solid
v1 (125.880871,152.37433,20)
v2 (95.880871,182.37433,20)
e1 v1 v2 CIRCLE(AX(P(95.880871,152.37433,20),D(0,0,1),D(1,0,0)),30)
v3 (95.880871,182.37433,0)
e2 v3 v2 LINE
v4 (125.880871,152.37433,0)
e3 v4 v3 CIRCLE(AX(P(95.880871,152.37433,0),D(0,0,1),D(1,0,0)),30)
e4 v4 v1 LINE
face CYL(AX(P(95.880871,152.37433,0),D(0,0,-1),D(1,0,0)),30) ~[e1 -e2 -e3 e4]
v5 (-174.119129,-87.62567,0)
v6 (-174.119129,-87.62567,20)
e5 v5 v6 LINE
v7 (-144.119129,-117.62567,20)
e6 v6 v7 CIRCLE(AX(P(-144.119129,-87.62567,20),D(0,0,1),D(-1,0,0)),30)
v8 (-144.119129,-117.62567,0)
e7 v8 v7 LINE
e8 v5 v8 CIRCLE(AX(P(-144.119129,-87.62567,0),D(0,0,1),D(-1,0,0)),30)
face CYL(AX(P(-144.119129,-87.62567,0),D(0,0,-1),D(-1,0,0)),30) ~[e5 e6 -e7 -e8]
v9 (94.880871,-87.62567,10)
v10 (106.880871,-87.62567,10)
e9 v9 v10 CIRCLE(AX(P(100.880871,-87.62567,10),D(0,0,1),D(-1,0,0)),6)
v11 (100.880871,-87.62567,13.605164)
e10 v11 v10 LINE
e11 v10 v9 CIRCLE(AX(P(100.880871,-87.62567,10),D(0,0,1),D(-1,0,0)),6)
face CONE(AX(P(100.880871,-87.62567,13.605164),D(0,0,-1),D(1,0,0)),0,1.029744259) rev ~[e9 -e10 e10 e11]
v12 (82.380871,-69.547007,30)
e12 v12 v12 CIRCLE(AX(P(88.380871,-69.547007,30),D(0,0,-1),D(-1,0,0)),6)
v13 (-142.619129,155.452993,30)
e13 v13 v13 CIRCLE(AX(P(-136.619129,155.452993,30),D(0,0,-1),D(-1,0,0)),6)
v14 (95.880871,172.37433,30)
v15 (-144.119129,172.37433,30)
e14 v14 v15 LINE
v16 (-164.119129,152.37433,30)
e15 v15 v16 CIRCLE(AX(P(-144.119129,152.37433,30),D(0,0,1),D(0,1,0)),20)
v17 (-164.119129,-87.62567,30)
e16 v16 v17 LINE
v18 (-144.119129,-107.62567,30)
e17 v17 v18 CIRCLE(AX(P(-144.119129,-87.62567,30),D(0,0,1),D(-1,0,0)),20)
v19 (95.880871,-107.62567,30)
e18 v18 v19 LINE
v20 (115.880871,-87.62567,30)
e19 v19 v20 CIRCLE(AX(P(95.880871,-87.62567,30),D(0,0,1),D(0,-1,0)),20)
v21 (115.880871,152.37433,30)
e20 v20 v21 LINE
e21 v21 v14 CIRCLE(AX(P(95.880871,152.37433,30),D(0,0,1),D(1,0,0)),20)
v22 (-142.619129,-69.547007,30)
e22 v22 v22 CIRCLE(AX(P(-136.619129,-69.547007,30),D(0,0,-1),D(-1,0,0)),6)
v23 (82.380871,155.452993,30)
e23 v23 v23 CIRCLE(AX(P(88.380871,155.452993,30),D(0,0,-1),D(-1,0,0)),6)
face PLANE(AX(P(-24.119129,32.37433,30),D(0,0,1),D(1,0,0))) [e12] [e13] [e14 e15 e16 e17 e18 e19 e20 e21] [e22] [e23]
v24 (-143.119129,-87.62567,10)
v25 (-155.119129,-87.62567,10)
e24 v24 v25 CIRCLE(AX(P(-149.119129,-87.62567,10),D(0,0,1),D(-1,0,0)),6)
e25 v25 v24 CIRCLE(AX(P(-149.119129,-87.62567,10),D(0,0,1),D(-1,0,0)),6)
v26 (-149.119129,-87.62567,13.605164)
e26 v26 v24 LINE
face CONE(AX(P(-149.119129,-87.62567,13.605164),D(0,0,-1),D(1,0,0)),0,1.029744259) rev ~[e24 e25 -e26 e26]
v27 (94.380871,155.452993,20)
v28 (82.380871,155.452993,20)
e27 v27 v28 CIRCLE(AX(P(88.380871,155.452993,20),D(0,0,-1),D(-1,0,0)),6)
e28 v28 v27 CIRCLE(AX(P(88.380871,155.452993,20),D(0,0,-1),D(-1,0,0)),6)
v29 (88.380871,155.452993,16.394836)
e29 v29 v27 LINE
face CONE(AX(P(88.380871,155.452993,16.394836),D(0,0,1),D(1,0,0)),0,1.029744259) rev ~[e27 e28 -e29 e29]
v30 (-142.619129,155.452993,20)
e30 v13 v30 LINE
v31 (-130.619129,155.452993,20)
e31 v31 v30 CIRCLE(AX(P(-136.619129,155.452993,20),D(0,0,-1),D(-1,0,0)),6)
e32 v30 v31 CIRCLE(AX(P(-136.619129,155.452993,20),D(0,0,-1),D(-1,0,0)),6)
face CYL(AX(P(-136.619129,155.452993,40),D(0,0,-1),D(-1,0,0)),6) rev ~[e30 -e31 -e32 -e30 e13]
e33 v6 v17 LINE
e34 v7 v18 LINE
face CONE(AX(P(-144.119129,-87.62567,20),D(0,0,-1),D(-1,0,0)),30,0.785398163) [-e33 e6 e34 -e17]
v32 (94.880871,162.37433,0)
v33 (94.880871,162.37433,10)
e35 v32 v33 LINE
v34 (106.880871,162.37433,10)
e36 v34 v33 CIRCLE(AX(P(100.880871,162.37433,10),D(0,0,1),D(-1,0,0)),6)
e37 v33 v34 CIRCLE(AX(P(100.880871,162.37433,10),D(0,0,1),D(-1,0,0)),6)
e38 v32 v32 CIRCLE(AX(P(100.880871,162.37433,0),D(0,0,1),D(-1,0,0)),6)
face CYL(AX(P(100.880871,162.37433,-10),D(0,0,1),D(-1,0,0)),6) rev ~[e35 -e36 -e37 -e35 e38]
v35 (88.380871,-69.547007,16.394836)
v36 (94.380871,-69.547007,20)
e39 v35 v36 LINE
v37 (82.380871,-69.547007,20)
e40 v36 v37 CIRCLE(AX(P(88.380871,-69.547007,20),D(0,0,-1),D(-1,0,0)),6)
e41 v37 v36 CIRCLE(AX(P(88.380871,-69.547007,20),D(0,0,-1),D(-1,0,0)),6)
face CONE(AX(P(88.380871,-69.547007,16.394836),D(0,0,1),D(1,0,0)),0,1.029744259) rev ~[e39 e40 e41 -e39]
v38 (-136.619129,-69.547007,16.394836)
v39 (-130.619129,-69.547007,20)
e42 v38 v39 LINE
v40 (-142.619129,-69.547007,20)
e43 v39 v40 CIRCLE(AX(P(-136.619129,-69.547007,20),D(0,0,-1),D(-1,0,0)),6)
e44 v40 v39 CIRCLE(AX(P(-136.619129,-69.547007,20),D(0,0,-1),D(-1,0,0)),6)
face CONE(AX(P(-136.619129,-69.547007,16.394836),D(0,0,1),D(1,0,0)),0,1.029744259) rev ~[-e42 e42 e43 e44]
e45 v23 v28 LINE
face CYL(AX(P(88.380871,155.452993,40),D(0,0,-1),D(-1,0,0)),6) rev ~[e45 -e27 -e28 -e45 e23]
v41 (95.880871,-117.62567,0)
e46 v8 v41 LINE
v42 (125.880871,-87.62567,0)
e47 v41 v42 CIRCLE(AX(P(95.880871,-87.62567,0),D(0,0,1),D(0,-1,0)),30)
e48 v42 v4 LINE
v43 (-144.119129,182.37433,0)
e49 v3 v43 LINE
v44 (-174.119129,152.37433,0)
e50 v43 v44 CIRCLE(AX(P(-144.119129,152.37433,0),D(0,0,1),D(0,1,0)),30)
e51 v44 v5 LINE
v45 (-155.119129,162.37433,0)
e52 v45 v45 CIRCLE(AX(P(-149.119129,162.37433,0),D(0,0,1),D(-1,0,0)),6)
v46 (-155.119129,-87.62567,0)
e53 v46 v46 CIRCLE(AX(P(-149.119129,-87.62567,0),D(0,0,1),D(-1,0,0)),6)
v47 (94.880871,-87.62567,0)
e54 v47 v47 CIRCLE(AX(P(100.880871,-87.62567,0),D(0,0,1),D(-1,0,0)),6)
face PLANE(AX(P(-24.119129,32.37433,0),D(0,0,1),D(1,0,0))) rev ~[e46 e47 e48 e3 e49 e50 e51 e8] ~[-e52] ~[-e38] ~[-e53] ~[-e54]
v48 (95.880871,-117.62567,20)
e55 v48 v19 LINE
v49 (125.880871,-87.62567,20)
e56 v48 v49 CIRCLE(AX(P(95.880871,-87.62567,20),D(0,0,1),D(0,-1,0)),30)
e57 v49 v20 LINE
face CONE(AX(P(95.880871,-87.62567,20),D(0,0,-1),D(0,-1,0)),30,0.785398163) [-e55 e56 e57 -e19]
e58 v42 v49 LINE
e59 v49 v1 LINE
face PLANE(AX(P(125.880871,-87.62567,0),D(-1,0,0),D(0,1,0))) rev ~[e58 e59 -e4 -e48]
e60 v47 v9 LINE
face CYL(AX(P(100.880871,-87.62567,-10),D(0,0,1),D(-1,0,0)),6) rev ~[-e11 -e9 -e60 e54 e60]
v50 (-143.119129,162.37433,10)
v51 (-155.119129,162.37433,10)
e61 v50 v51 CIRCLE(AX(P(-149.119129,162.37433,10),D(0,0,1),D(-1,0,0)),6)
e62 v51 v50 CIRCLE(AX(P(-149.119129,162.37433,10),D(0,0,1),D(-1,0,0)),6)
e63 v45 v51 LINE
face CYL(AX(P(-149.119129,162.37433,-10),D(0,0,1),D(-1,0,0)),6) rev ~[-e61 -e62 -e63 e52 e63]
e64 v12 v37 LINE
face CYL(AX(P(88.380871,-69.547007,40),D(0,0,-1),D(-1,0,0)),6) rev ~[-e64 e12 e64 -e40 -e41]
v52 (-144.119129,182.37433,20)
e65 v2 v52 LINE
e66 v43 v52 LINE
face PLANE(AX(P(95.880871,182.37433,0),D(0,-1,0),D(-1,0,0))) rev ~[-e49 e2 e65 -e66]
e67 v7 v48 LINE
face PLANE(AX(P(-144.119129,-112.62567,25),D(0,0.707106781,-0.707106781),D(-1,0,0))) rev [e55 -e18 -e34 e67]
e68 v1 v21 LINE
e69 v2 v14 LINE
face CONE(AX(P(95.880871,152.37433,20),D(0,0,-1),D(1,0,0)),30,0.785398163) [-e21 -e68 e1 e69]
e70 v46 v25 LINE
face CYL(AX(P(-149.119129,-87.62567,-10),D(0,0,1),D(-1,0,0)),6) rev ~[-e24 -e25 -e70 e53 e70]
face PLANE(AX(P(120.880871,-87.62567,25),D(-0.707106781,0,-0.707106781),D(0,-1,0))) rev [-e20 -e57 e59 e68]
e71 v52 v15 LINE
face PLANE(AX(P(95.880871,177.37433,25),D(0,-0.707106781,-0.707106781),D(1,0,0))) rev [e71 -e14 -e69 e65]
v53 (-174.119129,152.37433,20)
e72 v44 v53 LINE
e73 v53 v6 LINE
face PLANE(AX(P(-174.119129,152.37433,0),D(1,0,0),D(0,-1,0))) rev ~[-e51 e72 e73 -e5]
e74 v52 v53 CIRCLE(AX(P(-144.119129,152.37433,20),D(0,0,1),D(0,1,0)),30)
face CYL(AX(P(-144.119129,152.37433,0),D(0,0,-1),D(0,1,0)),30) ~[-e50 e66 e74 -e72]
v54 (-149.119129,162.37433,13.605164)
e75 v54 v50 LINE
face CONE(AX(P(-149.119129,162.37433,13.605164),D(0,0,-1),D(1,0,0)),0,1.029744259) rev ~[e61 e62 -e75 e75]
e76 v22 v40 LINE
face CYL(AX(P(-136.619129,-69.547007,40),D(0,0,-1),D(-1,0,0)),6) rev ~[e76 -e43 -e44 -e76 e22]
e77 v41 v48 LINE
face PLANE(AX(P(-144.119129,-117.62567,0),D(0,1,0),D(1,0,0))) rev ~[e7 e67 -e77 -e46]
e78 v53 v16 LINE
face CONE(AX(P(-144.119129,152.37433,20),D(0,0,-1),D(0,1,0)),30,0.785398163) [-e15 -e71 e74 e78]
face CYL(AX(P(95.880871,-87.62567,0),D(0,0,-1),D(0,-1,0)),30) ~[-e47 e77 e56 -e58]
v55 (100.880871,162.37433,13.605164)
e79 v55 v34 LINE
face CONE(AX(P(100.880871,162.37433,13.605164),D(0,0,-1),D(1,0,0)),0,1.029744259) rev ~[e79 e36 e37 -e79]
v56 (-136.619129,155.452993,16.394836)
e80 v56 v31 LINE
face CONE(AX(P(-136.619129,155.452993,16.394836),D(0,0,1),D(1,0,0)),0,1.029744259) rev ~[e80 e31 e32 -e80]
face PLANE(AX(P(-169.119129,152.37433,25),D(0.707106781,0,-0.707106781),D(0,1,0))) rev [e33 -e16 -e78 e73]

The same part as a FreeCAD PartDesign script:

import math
import FreeCAD as App
import Part
import Sketcher


def edges_at(feature, points):
    """Names of the edges that pass closest to the given points."""
    edges = feature.Shape.Edges
    near = lambda p: min(range(len(edges)), key=lambda i: edges[i].distToShape(Part.Vertex(*p))[0])
    return sorted({f"Edge{near(p) + 1}" for p in points})

doc = App.newDocument("Part")
body = doc.addObject("PartDesign::Body", "Body")

# Sketch on XY plane
sketch1 = doc.addObject("Sketcher::SketchObject", "Sketch")
body.addObject(sketch1)
sketch1.AttachmentSupport = (doc.XY_Plane, [""])
sketch1.MapMode = "FlatFace"
sketch1.addGeometry(Part.LineSegment(App.Vector(95.880871, 182.37433, 0), App.Vector(-144.119129, 182.37433, 0)), False)
sketch1.addGeometry(Part.ArcOfCircle(Part.Circle(App.Vector(-144.119129, 152.37433, 0), App.Vector(0, 0, 1), 30), math.radians(90), math.radians(180)), False)
sketch1.addGeometry(Part.LineSegment(App.Vector(-174.119129, 152.37433, 0), App.Vector(-174.119129, -87.62567, 0)), False)
sketch1.addGeometry(Part.ArcOfCircle(Part.Circle(App.Vector(-144.119129, -87.62567, 0), App.Vector(0, 0, 1), 30), math.radians(180), math.radians(270)), False)
sketch1.addGeometry(Part.LineSegment(App.Vector(-144.119129, -117.62567, 0), App.Vector(95.880871, -117.62567, 0)), False)
sketch1.addGeometry(Part.ArcOfCircle(Part.Circle(App.Vector(95.880871, -87.62567, 0), App.Vector(0, 0, 1), 30), math.radians(-90), math.radians(0)), False)
sketch1.addGeometry(Part.LineSegment(App.Vector(125.880871, -87.62567, 0), App.Vector(125.880871, 152.37433, 0)), False)
sketch1.addGeometry(Part.ArcOfCircle(Part.Circle(App.Vector(95.880871, 152.37433, 0), App.Vector(0, 0, 1), 30), math.radians(0), math.radians(90)), False)
sketch1.addConstraint(Sketcher.Constraint("Tangent", 0, 2, 1, 1))
sketch1.addConstraint(Sketcher.Constraint("Tangent", 1, 2, 2, 1))
sketch1.addConstraint(Sketcher.Constraint("Tangent", 2, 2, 3, 1))
sketch1.addConstraint(Sketcher.Constraint("Tangent", 3, 2, 4, 1))
sketch1.addConstraint(Sketcher.Constraint("Tangent", 4, 2, 5, 1))
sketch1.addConstraint(Sketcher.Constraint("Tangent", 5, 2, 6, 1))
sketch1.addConstraint(Sketcher.Constraint("Tangent", 6, 2, 7, 1))
sketch1.addConstraint(Sketcher.Constraint("Tangent", 7, 2, 0, 1))
sketch1.addConstraint(Sketcher.Constraint("Horizontal", 0))
sketch1.addConstraint(Sketcher.Constraint("Vertical", 2))
sketch1.addConstraint(Sketcher.Constraint("Horizontal", 4))
sketch1.addConstraint(Sketcher.Constraint("Vertical", 6))
sketch1.addConstraint(Sketcher.Constraint("Equal", 1, 3))
sketch1.addConstraint(Sketcher.Constraint("Equal", 3, 5))
sketch1.addConstraint(Sketcher.Constraint("Equal", 5, 7))
sketch1.addConstraint(Sketcher.Constraint("Equal", 4, 2))
sketch1.addConstraint(Sketcher.Constraint("Radius", 1, 30.0))
sketch1.addConstraint(Sketcher.Constraint("DistanceX", 0, 2, 0, 1, 240.0))
sketch1.addConstraint(Sketcher.Constraint("DistanceX", 1, 3, -1, 1, 144.119129))
sketch1.addConstraint(Sketcher.Constraint("DistanceY", -1, 1, 1, 3, 152.37433))
pad1 = doc.addObject("PartDesign::Pad", "Pad")
body.addObject(pad1)
pad1.Profile = sketch1
pad1.Length = 30

# Sketch on XY plane
sketch2 = doc.addObject("Sketcher::SketchObject", "Sketch001")
body.addObject(sketch2)
sketch2.AttachmentSupport = (doc.XY_Plane, [""])
sketch2.MapMode = "FlatFace"
sketch2.AttachmentOffset = App.Placement(App.Vector(0, 0, 30), App.Rotation())
sketch2.addGeometry(Part.Circle(App.Vector(-136.619129, 155.452993, 0), App.Vector(0, 0, 1), 6), False)
sketch2.addGeometry(Part.Circle(App.Vector(88.380871, 155.452993, 0), App.Vector(0, 0, 1), 6), False)
sketch2.addGeometry(Part.Circle(App.Vector(-136.619129, -69.547007, 0), App.Vector(0, 0, 1), 6), False)
sketch2.addGeometry(Part.Circle(App.Vector(88.380871, -69.547007, 0), App.Vector(0, 0, 1), 6), False)
sketch2.addConstraint(Sketcher.Constraint("Equal", 0, 1))
sketch2.addConstraint(Sketcher.Constraint("Equal", 1, 2))
sketch2.addConstraint(Sketcher.Constraint("Equal", 2, 3))
sketch2.addConstraint(Sketcher.Constraint("Horizontal", 0, 3, 1, 3))
sketch2.addConstraint(Sketcher.Constraint("Horizontal", 2, 3, 3, 3))
sketch2.addConstraint(Sketcher.Constraint("Vertical", 0, 3, 2, 3))
sketch2.addConstraint(Sketcher.Constraint("Vertical", 1, 3, 3, 3))
sketch2.addConstraint(Sketcher.Constraint("Diameter", 0, 12.0))
sketch2.addConstraint(Sketcher.Constraint("DistanceX", 0, 3, 1, 3, 225.0))
sketch2.addConstraint(Sketcher.Constraint("DistanceY", 2, 3, 0, 3, 225.0))
sketch2.addConstraint(Sketcher.Constraint("DistanceX", 0, 3, -1, 1, 136.619129))
sketch2.addConstraint(Sketcher.Constraint("DistanceY", -1, 1, 0, 3, 155.452993))
doc.recompute()
hole = doc.addObject("PartDesign::Hole", "Hole")
body.addObject(hole)
hole.Profile = sketch2
hole.ThreadType = "None"
hole.Diameter = 12
hole.DepthType = "Dimension"
hole.Depth = 10
hole.DrillPoint = "Angled"
hole.DrillPointAngle = 118
doc.recompute()

chamfer = doc.addObject("PartDesign::Chamfer", "Chamfer")
body.addObject(chamfer)
chamfer.Base = (hole, edges_at(hole, [
    (-165.332, 173.588, 30),
    (-174.119, 32.374, 30),
    (-165.332, -108.839, 30),
    (-24.119, -117.626, 30),
    (117.094, -108.839, 30),
    (125.881, 32.374, 30),
    (117.094, 173.588, 30),
    (-24.119, 182.374, 30),
]))
chamfer.ChamferType = "Two distances"
chamfer.Size = 10
chamfer.Size2 = 10

# Sketch on XY plane
sketch3 = doc.addObject("Sketcher::SketchObject", "Sketch002")
body.addObject(sketch3)
sketch3.AttachmentSupport = (doc.XY_Plane, [""])
sketch3.MapMode = "FlatFace"
sketch3.addGeometry(Part.Circle(App.Vector(-149.119129, -87.62567, 0), App.Vector(0, 0, 1), 6), False)
sketch3.addGeometry(Part.Circle(App.Vector(100.880871, -87.62567, 0), App.Vector(0, 0, 1), 6), False)
sketch3.addGeometry(Part.Circle(App.Vector(-149.119129, 162.37433, 0), App.Vector(0, 0, 1), 6), False)
sketch3.addGeometry(Part.Circle(App.Vector(100.880871, 162.37433, 0), App.Vector(0, 0, 1), 6), False)
sketch3.addConstraint(Sketcher.Constraint("Equal", 0, 1))
sketch3.addConstraint(Sketcher.Constraint("Equal", 1, 2))
sketch3.addConstraint(Sketcher.Constraint("Equal", 2, 3))
sketch3.addConstraint(Sketcher.Constraint("Horizontal", 0, 3, 1, 3))
sketch3.addConstraint(Sketcher.Constraint("Horizontal", 2, 3, 3, 3))
sketch3.addConstraint(Sketcher.Constraint("Vertical", 0, 3, 2, 3))
sketch3.addConstraint(Sketcher.Constraint("Vertical", 1, 3, 3, 3))
sketch3.addConstraint(Sketcher.Constraint("Diameter", 0, 12.0))
sketch3.addConstraint(Sketcher.Constraint("DistanceX", 0, 3, 1, 3, 250.0))
sketch3.addConstraint(Sketcher.Constraint("DistanceY", 0, 3, 2, 3, 250.0))
sketch3.addConstraint(Sketcher.Constraint("DistanceX", 0, 3, -1, 1, 149.119129))
sketch3.addConstraint(Sketcher.Constraint("DistanceY", 0, 3, -1, 1, 87.62567))
doc.recompute()
hole2 = doc.addObject("PartDesign::Hole", "Hole001")
body.addObject(hole2)
hole2.Profile = sketch3
hole2.ThreadType = "None"
hole2.Diameter = 12
hole2.DepthType = "Dimension"
hole2.Depth = 10
hole2.DrillPoint = "Angled"
hole2.DrillPointAngle = 118
hole2.Reversed = True

doc.recompute()
